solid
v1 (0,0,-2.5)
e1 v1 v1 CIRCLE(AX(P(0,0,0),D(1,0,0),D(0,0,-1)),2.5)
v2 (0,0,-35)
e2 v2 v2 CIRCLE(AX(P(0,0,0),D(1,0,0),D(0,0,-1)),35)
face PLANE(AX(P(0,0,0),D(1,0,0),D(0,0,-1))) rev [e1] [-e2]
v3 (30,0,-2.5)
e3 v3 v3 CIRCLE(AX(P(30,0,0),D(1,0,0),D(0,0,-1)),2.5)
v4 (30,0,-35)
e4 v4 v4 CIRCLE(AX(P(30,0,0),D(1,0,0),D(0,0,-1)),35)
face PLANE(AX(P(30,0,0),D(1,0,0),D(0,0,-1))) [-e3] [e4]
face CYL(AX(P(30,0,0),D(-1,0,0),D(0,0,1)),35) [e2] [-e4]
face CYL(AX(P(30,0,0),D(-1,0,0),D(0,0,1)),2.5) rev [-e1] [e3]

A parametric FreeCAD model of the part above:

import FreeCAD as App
import Part
import Sketcher

doc = App.newDocument("Part")
body = doc.addObject("PartDesign::Body", "Body")

# Sketch on YZ plane
sketch1 = doc.addObject("Sketcher::SketchObject", "Sketch")
body.addObject(sketch1)
sketch1.AttachmentSupport = (doc.YZ_Plane, [""])
sketch1.MapMode = "FlatFace"
sketch1.addGeometry([
    Part.Circle(App.Vector(0, 0, 0), App.Vector(0, 0, 1), 35),
    Part.Circle(App.Vector(0, 0, 0), App.Vector(0, 0, 1), 2.5),
], False)
sketch1.addConstraint([
    Sketcher.Constraint("Coincident", 0, 3, -1, 1),
    Sketcher.Constraint("Coincident", 1, 3, -1, 1),
    Sketcher.Constraint("Diameter", 0, 70.0),
    Sketcher.Constraint("Diameter", 1, 5.0),
])
pad1 = doc.addObject("PartDesign::Pad", "Pad")
body.addObject(pad1)
pad1.Profile = sketch1
pad1.Length = 30

doc.recompute()
